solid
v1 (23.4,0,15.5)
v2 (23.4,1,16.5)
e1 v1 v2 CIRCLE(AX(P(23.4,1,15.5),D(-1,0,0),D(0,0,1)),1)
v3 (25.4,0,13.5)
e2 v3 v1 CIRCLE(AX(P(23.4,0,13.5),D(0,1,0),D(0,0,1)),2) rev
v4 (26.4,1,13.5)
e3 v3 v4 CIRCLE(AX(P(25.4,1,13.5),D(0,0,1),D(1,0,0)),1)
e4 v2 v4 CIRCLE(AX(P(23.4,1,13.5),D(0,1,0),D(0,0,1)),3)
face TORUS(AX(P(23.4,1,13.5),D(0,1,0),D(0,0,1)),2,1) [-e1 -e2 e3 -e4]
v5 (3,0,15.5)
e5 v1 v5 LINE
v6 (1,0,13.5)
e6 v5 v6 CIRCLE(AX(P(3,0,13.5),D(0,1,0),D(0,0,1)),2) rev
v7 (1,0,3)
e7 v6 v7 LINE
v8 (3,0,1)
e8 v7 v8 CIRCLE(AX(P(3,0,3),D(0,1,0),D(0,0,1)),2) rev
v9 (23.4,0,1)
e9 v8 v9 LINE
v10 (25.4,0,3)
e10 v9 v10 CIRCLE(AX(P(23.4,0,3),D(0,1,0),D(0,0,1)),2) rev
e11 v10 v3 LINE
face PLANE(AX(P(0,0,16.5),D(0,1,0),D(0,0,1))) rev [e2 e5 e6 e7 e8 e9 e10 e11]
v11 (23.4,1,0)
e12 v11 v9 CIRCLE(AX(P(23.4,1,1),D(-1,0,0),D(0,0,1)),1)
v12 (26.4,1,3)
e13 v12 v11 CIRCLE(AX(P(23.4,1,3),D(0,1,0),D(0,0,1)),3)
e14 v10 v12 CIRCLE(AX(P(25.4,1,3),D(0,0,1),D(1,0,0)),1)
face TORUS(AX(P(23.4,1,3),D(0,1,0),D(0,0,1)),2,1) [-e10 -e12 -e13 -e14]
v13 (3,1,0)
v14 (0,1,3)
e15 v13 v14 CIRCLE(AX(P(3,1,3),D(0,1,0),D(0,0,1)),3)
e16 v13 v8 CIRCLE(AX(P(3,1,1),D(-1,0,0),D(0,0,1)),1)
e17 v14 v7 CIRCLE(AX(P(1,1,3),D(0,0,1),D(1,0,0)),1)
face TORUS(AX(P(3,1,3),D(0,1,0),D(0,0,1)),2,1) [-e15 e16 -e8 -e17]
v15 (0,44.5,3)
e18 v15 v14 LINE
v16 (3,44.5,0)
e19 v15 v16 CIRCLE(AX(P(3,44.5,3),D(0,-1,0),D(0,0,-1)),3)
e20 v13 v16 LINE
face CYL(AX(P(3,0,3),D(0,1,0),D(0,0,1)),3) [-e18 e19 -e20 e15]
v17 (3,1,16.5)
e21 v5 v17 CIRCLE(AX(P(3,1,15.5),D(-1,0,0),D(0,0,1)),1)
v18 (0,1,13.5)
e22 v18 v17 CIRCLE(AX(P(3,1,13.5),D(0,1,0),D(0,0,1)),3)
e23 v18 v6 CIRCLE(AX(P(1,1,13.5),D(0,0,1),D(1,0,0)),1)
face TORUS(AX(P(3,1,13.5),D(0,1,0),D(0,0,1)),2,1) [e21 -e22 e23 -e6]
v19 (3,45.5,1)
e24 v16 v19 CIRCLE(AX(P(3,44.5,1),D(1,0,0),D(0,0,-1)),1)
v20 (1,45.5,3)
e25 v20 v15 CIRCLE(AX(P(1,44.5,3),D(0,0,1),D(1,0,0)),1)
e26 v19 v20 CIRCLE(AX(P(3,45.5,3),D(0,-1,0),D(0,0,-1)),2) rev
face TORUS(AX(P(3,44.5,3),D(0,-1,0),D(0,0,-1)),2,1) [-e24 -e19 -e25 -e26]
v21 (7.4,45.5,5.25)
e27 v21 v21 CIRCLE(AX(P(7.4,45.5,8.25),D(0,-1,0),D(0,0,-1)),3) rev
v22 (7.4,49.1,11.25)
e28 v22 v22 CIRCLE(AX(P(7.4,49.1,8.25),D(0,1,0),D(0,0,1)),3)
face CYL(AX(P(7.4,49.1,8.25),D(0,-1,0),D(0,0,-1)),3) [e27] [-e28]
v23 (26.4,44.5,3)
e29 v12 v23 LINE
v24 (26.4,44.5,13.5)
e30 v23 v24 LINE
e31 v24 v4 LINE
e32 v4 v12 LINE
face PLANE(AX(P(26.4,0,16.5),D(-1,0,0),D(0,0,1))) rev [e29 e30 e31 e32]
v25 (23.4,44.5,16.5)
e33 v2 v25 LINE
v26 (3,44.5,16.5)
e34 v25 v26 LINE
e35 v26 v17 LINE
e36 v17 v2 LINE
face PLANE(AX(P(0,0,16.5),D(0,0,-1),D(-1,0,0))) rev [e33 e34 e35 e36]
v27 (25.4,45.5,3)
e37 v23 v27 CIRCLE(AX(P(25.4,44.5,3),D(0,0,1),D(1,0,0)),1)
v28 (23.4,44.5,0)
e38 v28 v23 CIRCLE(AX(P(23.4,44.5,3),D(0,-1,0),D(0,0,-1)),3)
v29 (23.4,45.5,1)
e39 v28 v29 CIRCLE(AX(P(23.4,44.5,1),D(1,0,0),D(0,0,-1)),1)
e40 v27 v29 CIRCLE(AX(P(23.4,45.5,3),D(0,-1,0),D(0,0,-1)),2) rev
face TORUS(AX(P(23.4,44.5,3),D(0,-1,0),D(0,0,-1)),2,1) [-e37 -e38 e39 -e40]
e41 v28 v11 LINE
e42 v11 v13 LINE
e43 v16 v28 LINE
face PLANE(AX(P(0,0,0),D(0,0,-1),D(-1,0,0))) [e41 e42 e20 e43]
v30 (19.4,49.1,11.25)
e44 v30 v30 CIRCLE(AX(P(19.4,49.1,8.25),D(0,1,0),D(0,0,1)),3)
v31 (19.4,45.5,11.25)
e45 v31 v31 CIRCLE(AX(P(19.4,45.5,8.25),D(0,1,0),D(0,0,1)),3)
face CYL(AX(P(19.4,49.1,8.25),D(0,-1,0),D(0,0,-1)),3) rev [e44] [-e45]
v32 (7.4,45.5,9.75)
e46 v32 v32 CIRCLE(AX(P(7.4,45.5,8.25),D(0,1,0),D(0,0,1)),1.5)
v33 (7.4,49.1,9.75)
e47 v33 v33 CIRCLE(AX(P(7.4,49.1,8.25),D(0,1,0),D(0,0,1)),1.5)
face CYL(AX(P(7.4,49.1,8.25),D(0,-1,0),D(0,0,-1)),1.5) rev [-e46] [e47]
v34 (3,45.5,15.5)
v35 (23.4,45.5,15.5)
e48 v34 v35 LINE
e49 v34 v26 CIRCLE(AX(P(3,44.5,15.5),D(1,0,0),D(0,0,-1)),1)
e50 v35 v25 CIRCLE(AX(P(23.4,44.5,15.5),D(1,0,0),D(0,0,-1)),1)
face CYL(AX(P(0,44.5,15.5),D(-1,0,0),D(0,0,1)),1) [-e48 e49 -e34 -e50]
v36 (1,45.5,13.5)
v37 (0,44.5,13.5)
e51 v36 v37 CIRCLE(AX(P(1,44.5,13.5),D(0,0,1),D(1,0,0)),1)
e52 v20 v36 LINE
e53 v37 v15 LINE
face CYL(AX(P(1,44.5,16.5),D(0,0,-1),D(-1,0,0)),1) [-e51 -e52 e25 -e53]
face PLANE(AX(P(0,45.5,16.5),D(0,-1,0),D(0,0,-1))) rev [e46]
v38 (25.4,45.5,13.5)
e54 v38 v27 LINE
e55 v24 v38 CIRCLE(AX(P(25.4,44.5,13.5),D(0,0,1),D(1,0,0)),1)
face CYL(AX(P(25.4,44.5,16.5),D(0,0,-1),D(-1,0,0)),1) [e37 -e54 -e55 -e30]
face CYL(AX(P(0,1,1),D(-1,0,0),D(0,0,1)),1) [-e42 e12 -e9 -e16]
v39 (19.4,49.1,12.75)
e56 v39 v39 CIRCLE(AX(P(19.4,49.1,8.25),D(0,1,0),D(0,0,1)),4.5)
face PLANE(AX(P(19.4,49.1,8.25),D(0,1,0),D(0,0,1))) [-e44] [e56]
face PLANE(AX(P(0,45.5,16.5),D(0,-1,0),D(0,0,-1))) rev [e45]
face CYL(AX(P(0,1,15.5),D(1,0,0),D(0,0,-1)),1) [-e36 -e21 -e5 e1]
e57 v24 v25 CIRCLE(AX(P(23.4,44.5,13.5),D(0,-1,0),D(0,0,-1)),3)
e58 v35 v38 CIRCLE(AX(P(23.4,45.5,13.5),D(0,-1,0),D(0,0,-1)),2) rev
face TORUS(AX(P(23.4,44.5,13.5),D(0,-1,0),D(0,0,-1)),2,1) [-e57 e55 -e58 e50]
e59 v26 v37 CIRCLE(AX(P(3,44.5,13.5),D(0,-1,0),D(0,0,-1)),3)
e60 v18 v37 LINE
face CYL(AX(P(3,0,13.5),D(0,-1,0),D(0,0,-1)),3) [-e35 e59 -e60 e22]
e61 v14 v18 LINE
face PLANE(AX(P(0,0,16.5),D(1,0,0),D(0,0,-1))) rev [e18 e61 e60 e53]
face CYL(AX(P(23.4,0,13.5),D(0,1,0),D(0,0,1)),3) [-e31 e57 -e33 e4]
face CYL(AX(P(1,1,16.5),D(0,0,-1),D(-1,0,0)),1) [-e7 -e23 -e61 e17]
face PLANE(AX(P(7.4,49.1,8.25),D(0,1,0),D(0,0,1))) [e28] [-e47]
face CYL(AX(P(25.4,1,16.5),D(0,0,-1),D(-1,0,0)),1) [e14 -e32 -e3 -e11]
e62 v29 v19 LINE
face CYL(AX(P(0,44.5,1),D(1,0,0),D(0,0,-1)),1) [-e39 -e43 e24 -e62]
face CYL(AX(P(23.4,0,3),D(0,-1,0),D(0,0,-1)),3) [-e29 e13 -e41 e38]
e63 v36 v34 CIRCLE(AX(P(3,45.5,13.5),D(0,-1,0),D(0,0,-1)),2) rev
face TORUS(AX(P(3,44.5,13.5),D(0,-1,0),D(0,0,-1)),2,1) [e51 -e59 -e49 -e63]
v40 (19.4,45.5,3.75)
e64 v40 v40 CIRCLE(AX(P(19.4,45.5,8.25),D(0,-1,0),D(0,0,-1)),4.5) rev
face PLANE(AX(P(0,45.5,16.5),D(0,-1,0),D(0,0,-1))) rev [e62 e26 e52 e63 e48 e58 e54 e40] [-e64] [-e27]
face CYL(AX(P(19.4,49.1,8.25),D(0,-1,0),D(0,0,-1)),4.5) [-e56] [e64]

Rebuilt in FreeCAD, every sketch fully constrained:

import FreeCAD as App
import Part
import Sketcher


def edges_at(feature, points):
    """Names of the edges that pass closest to the given points."""
    edges = feature.Shape.Edges
    near = lambda p: min(range(len(edges)), key=lambda i: edges[i].distToShape(Part.Vertex(*p))[0])
    return sorted({f"Edge{near(p) + 1}" for p in points})


def add_polygon(sketch, points):
    """Adds a closed chain of lines whose ends are joined by coincident constraints."""
    first, n = sketch.GeometryCount, len(points)
    for a, b in zip(points, points[1:] + points[:1]):
        sketch.addGeometry(Part.LineSegment(App.Vector(*a, 0), App.Vector(*b, 0)), False)
    for i in range(n):
        sketch.addConstraint(Sketcher.Constraint("Coincident", first + i, 2, first + (i + 1) % n, 1))

doc = App.newDocument("Part")
body = doc.addObject("PartDesign::Body", "Body")

sketch1 = body.newObject("Sketcher::SketchObject", "Sketch")
sketch1.AttachmentSupport = (doc.getObject("XY_Plane"), [""])
sketch1.MapMode = "FlatFace"
add_polygon(sketch1, [(0, 46), (0, 0), (26, 0), (26, 46)])
sketch1.addConstraint(Sketcher.Constraint("Vertical", 0))
sketch1.addConstraint(Sketcher.Constraint("Horizontal", 1))
sketch1.addConstraint(Sketcher.Constraint("Vertical", 2))
sketch1.addConstraint(Sketcher.Constraint("Horizontal", 3))
sketch1.addConstraint(Sketcher.Constraint("Coincident", 0, 2, -1, 1))
sketch1.addConstraint(Sketcher.Constraint("DistanceX", 1, 1, 1, 2, 26.4))
sketch1.addConstraint(Sketcher.Constraint("DistanceY", 0, 2, 0, 1, 45.5))
pad1 = body.newObject("PartDesign::Pad", "Pad")
pad1.Profile = sketch1
pad1.Length = 16.5
doc.recompute()

fillet = body.newObject("PartDesign::Fillet", "Fillet")
fillet.Base = (pad1, edges_at(pad1, [
    (26.4, 22.75, 16.5),
    (0, 22.75, 16.5),
    (26.4, 22.75, 0),
    (0, 22.75, 0),
]))
fillet.Radius = 3

sketch2 = body.newObject("Sketcher::SketchObject", "Sketch001")
sketch2.AttachmentSupport = (doc.getObject("XZ_Plane"), [""])
sketch2.MapMode = "FlatFace"
sketch2.AttachmentOffset = App.Placement(App.Vector(0, 0, -45.5), App.Rotation())
sketch2.addGeometry(Part.Circle(App.Vector(7.4, 8.2, 0), App.Vector(0, 0, 1), 3), False)
sketch2.addGeometry(Part.Circle(App.Vector(7.4, 8.2, 0), App.Vector(0, 0, 1), 1.5), False)
sketch2.addGeometry(Part.Circle(App.Vector(19.4, 8.2, 0), App.Vector(0, 0, 1), 4.5), False)
sketch2.addGeometry(Part.Circle(App.Vector(19.4, 8.2, 0), App.Vector(0, 0, 1), 3), False)
sketch2.addConstraint(Sketcher.Constraint("Coincident", 1, 3, 0, 3))
sketch2.addConstraint(Sketcher.Constraint("Coincident", 3, 3, 2, 3))
sketch2.addConstraint(Sketcher.Constraint("Equal", 0, 3))
sketch2.addConstraint(Sketcher.Constraint("Horizontal", 1, 3, 2, 3))
sketch2.addConstraint(Sketcher.Constraint("Diameter", 0, 6.0))
sketch2.addConstraint(Sketcher.Constraint("Diameter", 1, 3.0))
sketch2.addConstraint(Sketcher.Constraint("Diameter", 2, 9.0))
sketch2.addConstraint(Sketcher.Constraint("DistanceX", 0, 3, 2, 3, 12.0))
sketch2.addConstraint(Sketcher.Constraint("DistanceX", -1, 1, 0, 3, 7.4))
sketch2.addConstraint(Sketcher.Constraint("DistanceY", -1, 1, 0, 3, 8.25))
pad2 = body.newObject("PartDesign::Pad", "Pad001")
pad2.Profile = sketch2
pad2.Length = 3.6
pad2.Reversed = True
doc.recompute()

fillet2 = body.newObject("PartDesign::Fillet", "Fillet001")
fillet2.Base = (pad2, edges_at(pad2, [
    (0, 0, 8.25),
    (0, 45.5, 8.25),
    (13.2, 0, 0),
    (26.4, 0, 8.25),
    (13.2, 0, 16.5),
    (25.521, 0, 15.621),
    (25.521, 0, 0.879),
    (0.879, 0, 15.621),
    (0.879, 0, 0.879),
    (13.2, 45.5, 0),
    (13.2, 45.5, 16.5),
    (26.4, 45.5, 8.25),
    (25.521, 45.5, 15.621),
    (25.521, 45.5, 0.879),
    (0.879, 45.5, 15.621),
    (0.879, 45.5, 0.879),
]))
fillet2.Radius = 1

doc.recompute()
